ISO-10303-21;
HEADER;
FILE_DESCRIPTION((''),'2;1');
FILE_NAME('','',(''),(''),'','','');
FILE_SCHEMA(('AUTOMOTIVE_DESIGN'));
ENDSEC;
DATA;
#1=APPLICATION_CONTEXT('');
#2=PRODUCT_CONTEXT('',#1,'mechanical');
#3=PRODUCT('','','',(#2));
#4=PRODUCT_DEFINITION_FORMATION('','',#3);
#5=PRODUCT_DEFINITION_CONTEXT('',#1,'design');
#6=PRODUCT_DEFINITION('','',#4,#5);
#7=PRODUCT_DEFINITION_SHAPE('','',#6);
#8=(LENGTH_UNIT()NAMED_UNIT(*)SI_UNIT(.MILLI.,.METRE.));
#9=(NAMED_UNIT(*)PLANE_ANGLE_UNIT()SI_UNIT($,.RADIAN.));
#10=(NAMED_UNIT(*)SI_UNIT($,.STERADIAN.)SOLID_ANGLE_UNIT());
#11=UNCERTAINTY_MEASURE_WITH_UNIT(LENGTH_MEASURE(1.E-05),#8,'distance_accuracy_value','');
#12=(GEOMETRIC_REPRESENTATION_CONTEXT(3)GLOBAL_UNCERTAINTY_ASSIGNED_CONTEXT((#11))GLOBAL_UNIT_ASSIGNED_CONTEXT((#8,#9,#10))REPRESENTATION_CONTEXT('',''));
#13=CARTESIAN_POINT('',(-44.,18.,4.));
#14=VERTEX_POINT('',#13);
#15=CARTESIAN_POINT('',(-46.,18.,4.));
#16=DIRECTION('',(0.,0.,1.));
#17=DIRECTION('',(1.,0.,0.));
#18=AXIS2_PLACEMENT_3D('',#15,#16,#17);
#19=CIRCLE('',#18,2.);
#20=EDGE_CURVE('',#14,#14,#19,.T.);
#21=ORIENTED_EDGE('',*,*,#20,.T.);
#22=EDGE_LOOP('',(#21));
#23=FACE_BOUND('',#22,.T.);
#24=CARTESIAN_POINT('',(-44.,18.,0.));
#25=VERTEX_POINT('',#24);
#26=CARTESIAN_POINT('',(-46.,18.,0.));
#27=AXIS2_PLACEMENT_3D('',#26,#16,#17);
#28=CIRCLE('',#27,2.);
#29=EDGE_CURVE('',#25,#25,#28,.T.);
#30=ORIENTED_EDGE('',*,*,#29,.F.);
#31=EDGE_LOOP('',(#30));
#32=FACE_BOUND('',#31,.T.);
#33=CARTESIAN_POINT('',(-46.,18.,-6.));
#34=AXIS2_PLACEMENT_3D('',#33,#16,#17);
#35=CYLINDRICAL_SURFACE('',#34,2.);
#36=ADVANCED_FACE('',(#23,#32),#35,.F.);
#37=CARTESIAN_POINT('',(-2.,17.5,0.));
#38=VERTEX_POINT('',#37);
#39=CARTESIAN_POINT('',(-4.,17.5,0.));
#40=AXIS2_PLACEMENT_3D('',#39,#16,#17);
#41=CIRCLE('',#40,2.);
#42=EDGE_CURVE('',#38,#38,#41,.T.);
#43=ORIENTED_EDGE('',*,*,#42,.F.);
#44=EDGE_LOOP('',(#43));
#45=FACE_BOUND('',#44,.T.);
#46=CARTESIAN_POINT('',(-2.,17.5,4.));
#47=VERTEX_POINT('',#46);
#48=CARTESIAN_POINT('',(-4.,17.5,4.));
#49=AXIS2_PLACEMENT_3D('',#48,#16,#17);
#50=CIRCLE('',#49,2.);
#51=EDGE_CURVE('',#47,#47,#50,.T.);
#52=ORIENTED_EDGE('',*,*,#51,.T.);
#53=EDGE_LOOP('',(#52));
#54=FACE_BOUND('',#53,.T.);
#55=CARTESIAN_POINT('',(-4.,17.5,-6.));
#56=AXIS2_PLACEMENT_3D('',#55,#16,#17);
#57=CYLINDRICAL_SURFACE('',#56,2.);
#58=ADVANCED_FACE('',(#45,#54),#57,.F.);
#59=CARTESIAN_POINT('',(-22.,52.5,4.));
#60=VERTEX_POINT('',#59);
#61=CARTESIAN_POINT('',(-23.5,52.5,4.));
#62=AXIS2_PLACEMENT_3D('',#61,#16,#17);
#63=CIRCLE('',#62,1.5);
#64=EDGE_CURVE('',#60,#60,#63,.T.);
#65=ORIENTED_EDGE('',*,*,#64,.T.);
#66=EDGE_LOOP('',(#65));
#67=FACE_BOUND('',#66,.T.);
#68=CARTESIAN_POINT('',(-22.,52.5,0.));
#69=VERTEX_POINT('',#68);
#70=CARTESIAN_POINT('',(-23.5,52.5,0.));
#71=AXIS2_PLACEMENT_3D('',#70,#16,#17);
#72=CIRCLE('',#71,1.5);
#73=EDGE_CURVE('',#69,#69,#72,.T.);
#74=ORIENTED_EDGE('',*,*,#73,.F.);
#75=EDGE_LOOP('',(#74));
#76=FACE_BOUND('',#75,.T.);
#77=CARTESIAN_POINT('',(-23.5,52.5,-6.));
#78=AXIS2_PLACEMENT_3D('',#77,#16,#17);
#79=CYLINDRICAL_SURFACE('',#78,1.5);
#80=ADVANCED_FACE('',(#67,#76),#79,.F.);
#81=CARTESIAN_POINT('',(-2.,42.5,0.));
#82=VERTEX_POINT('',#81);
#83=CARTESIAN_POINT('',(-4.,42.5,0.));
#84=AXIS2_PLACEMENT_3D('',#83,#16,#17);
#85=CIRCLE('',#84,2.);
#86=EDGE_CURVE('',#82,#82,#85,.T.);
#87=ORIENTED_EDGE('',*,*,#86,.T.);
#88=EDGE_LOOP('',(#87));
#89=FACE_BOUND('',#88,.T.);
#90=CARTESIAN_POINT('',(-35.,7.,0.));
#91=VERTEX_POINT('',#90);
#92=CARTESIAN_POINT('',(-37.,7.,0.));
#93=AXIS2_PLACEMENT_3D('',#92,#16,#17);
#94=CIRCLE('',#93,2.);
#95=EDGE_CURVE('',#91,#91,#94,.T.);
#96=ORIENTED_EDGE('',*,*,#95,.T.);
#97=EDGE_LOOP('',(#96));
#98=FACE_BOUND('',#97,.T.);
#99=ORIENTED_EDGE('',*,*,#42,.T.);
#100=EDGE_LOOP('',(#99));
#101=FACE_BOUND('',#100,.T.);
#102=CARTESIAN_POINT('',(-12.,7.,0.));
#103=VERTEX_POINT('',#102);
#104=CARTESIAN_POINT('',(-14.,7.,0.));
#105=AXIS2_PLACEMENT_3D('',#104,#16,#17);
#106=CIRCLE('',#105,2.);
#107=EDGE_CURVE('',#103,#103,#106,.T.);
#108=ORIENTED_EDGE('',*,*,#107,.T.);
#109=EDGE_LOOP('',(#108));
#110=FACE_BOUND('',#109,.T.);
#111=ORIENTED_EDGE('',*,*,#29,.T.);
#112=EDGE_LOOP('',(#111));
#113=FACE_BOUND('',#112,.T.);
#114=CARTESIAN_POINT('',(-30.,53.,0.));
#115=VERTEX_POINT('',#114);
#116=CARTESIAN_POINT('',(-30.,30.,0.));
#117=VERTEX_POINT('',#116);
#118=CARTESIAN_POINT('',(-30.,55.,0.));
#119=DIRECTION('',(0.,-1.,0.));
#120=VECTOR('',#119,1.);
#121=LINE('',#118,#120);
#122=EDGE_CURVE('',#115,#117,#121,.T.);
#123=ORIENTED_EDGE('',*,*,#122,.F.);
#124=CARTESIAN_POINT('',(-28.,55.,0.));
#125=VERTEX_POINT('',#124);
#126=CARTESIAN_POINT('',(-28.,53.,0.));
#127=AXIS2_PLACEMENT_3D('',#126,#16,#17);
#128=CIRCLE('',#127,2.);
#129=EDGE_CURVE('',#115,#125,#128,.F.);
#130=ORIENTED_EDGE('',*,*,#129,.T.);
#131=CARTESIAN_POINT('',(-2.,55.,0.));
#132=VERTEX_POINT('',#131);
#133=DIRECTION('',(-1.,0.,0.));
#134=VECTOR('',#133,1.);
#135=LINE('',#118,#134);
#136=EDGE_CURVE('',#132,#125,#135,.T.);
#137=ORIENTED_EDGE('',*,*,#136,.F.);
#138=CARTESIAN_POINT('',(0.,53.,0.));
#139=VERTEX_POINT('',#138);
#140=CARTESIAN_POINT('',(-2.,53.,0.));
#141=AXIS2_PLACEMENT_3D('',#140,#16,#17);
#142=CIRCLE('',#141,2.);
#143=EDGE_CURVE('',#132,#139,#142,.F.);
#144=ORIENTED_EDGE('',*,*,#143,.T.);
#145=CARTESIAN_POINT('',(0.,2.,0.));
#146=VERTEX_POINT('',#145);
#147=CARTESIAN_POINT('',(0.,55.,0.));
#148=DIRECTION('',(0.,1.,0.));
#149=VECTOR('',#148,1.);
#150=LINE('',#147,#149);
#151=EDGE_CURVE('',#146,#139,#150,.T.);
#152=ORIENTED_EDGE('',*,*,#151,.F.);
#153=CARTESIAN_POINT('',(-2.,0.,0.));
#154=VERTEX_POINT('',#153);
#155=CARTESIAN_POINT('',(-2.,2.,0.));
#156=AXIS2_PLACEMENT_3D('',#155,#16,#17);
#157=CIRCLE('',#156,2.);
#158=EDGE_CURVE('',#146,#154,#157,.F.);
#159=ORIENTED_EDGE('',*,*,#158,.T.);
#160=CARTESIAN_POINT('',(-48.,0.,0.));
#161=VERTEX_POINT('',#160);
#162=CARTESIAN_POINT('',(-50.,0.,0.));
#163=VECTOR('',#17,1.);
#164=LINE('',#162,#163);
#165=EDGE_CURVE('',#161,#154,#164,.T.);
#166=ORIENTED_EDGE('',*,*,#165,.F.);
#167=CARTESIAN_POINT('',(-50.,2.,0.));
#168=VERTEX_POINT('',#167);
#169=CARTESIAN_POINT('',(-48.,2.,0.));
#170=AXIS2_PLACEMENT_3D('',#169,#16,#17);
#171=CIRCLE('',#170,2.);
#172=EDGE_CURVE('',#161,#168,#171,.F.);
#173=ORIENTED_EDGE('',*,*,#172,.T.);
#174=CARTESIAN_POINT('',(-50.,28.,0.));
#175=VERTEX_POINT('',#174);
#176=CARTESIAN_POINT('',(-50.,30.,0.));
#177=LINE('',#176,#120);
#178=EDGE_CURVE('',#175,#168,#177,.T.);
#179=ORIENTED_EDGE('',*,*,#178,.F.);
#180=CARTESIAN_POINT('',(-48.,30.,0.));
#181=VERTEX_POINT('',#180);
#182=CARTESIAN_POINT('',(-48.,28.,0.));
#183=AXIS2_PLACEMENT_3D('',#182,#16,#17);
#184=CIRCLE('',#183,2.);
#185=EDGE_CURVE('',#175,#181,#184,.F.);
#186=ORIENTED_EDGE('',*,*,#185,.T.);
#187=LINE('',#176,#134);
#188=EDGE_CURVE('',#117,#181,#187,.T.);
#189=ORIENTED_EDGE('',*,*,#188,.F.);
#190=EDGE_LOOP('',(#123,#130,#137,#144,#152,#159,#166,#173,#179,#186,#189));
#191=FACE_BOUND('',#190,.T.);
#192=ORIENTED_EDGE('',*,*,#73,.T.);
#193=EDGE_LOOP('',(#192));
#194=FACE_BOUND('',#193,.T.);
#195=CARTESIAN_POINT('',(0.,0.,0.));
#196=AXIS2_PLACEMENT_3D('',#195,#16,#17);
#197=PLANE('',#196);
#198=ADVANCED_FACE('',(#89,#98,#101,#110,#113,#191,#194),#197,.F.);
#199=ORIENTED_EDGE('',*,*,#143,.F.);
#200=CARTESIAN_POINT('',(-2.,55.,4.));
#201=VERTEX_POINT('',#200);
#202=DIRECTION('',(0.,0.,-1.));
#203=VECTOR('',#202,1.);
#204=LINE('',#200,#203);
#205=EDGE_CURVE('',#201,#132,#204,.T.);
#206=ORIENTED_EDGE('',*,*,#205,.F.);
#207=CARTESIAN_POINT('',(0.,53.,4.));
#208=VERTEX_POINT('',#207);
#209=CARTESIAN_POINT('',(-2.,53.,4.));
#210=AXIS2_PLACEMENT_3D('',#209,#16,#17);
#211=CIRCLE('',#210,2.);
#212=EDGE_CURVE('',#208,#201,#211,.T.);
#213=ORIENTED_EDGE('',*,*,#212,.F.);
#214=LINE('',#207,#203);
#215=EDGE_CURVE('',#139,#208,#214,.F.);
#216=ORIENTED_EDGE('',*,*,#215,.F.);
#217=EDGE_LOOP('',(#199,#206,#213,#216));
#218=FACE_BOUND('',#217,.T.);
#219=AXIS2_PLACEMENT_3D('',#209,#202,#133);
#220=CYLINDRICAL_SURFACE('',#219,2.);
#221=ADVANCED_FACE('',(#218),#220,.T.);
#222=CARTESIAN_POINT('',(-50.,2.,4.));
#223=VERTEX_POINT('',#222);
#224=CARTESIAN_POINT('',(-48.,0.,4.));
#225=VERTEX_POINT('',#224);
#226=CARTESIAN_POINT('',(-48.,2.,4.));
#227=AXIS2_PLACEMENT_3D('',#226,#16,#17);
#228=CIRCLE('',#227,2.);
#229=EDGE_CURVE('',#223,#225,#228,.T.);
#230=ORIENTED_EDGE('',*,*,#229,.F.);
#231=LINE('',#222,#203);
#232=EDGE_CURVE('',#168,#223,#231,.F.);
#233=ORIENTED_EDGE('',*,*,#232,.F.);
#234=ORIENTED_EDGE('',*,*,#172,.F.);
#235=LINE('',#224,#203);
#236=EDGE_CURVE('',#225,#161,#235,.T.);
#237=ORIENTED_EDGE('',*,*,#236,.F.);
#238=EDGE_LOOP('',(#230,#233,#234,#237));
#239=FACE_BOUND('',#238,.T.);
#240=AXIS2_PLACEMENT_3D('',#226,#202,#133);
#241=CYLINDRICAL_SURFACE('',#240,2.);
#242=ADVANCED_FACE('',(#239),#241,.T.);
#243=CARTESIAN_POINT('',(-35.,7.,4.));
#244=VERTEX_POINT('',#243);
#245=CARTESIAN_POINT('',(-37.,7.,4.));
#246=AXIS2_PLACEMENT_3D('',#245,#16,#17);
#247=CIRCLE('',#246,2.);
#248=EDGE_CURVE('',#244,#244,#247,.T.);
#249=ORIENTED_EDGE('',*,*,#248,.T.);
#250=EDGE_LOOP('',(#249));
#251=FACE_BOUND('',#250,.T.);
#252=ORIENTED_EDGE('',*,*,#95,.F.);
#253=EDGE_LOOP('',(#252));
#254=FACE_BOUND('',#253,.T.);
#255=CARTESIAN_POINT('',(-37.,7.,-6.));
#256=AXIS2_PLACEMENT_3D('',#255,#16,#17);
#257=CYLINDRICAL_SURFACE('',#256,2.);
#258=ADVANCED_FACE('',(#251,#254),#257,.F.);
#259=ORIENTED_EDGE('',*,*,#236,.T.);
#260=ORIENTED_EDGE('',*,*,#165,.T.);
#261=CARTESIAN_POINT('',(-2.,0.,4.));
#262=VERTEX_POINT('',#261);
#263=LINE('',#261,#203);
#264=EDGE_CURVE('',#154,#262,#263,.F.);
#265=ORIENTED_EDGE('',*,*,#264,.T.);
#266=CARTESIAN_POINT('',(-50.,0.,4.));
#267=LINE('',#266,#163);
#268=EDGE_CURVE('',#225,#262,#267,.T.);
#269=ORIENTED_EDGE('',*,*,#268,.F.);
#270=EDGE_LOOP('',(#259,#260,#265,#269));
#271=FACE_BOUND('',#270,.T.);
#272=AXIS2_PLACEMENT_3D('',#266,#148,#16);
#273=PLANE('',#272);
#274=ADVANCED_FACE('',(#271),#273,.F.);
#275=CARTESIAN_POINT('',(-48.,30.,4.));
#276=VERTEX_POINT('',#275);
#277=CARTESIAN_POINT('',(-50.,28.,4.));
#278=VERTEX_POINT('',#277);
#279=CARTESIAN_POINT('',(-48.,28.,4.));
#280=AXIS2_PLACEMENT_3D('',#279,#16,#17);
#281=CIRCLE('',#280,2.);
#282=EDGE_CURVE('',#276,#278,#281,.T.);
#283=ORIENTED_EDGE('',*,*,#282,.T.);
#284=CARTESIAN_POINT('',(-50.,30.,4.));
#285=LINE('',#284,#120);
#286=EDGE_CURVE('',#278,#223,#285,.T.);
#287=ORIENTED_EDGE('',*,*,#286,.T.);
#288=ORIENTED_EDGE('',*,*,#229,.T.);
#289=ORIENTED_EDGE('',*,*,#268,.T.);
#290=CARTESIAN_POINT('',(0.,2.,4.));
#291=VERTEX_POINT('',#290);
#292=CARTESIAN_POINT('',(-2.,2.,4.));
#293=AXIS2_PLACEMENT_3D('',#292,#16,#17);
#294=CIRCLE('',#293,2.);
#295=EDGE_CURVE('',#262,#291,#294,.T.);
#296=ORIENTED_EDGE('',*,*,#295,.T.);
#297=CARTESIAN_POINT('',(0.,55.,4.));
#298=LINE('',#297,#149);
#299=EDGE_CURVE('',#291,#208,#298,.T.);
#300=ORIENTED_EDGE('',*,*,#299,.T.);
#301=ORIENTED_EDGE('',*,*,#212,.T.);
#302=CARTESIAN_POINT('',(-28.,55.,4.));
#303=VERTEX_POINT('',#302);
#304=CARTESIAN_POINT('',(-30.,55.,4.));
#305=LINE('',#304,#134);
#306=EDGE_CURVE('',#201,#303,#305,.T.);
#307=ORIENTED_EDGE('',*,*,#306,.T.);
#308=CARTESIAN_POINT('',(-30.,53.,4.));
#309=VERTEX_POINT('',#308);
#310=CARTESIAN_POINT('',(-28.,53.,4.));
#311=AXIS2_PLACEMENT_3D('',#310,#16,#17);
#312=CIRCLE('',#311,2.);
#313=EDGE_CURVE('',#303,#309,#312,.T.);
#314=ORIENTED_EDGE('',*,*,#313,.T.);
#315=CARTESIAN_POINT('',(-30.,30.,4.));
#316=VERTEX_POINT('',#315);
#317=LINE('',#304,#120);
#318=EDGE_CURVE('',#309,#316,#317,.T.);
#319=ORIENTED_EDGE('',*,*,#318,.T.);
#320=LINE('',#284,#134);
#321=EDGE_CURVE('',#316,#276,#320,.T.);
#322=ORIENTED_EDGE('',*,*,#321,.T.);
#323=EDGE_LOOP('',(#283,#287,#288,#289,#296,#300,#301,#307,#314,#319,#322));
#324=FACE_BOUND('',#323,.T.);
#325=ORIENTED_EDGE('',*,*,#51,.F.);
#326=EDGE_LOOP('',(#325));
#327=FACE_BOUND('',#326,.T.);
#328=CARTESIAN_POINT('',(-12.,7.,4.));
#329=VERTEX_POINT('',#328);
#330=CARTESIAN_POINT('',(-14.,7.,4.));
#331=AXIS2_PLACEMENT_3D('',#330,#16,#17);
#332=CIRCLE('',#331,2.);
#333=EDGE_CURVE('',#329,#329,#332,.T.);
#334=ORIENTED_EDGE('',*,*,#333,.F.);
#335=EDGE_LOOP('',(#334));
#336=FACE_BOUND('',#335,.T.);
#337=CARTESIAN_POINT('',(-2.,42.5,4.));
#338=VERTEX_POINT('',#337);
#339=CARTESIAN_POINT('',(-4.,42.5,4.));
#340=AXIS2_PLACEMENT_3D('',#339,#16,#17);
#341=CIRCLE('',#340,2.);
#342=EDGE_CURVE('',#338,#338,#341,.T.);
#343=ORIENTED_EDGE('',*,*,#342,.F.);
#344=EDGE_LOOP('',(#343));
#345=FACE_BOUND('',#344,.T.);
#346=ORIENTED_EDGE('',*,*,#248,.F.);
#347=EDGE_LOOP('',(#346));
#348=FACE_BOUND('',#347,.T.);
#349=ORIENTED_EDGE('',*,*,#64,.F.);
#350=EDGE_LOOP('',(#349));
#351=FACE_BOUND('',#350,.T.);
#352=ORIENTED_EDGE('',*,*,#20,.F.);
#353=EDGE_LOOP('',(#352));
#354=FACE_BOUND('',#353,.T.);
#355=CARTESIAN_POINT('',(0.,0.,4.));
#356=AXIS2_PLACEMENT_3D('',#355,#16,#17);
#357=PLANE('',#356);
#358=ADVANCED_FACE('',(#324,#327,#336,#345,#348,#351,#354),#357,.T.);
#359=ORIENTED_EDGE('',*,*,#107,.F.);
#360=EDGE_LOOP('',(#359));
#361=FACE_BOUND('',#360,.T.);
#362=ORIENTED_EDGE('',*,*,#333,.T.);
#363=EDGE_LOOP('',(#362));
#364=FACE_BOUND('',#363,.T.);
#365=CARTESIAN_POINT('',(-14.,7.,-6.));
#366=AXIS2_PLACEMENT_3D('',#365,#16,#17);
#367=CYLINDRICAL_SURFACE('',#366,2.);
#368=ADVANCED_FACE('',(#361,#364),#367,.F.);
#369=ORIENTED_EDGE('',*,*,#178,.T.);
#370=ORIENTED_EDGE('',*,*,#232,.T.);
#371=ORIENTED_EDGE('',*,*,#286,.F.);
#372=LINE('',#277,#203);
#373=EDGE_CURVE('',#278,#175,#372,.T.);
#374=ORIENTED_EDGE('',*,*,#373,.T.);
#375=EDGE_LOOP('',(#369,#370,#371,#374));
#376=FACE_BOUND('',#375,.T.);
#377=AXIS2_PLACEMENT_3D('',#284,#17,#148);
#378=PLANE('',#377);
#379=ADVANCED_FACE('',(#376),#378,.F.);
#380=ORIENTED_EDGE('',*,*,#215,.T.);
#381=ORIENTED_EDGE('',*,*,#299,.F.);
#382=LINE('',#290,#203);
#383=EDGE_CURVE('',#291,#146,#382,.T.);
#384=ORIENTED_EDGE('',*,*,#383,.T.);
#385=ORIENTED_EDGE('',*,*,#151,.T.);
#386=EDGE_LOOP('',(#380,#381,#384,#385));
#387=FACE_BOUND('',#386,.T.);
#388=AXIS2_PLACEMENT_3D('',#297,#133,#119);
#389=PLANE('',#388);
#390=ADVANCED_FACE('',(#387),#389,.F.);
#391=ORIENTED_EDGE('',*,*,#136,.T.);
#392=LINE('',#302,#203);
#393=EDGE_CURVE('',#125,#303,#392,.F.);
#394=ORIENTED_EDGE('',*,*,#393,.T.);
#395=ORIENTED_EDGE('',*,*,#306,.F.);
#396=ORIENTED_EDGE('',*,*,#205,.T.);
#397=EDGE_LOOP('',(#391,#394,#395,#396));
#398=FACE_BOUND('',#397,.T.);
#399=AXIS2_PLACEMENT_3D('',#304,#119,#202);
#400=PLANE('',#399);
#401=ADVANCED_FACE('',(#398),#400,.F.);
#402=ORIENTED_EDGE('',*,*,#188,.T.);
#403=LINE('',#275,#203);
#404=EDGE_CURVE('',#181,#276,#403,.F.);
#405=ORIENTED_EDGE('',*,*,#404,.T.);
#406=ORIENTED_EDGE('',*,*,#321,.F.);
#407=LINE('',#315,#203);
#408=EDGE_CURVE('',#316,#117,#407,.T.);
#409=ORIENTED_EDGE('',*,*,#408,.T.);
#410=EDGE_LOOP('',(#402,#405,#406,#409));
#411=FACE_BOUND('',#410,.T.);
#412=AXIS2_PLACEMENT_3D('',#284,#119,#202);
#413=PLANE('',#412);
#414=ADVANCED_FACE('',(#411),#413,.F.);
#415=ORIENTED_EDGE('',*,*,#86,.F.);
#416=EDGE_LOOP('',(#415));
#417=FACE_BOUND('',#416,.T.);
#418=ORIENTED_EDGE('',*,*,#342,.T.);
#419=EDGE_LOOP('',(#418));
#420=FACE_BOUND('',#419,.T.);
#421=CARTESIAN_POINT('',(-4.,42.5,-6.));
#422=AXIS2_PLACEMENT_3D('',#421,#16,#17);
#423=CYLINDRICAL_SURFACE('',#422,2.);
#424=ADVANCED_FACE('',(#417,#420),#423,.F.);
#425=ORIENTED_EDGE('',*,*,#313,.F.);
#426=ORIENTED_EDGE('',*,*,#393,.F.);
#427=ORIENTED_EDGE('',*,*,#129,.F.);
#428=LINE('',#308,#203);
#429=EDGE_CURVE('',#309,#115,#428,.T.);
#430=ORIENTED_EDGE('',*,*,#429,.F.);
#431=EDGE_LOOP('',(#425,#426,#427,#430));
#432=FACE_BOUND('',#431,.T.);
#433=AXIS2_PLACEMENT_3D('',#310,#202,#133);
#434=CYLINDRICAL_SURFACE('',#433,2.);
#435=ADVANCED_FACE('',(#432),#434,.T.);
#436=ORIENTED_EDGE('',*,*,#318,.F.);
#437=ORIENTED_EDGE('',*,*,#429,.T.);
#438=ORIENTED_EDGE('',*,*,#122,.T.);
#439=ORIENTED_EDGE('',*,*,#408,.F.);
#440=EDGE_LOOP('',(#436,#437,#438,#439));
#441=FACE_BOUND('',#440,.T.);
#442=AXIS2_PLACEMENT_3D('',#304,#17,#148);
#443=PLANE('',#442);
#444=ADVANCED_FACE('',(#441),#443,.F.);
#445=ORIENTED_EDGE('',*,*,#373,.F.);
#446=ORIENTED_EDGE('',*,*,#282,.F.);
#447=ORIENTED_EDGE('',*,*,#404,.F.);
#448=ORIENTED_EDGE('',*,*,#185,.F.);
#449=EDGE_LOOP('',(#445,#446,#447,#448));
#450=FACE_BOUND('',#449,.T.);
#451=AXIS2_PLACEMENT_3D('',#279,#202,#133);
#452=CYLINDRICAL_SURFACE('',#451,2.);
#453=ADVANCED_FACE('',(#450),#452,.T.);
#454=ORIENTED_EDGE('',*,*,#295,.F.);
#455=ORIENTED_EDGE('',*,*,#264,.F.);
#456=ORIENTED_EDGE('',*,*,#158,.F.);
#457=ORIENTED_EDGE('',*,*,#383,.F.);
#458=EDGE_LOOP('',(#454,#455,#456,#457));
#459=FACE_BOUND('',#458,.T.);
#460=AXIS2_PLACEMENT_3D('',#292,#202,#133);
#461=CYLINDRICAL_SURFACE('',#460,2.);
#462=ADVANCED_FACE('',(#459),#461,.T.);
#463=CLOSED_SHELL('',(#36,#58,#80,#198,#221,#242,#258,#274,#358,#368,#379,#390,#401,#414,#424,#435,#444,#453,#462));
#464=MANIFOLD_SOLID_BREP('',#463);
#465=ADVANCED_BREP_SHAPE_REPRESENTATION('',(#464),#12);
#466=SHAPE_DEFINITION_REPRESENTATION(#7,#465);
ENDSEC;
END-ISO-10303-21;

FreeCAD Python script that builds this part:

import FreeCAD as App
import Part
import Sketcher

V = App.Vector


def edges_at(feature, points):
    """Names of the edges that pass closest to the given points."""
    edges = feature.Shape.Edges
    near = lambda p: min(range(len(edges)), key=lambda i: edges[i].distToShape(Part.Vertex(*p))[0])
    return sorted({f"Edge{near(p) + 1}" for p in points})


def add_polygon(sketch, points):
    """Adds a closed chain of lines whose ends are joined by coincident constraints."""
    first, n = sketch.GeometryCount, len(points)
    for a, b in zip(points, points[1:] + points[:1]):
        sketch.addGeometry(Part.LineSegment(App.Vector(*a, 0), App.Vector(*b, 0)), False)
    for i in range(n):
        sketch.addConstraint(Sketcher.Constraint("Coincident", first + i, 2, first + (i + 1) % n, 1))

doc = App.newDocument("Part")
body = doc.addObject("PartDesign::Body", "Body")

# Sketch on XY plane
sketch1 = body.newObject("Sketcher::SketchObject", "Sketch")
sketch1.AttachmentSupport = (doc.getObject("XY_Plane"), [""])
sketch1.MapMode = "FlatFace"
add_polygon(sketch1, [(0, 55), (-30, 55), (-30, 30), (-50, 30), (-50, 0), (0, 0)])  # lines 0-5
sketch1.addConstraint([
    Sketcher.Constraint("Horizontal", 0),
    Sketcher.Constraint("Vertical", 1),
    Sketcher.Constraint("Horizontal", 2),
    Sketcher.Constraint("Vertical", 3),
    Sketcher.Constraint("Horizontal", 4),
    Sketcher.Constraint("Vertical", 5),
    Sketcher.Constraint("Coincident", 4, 2, -1, 1),
    Sketcher.Constraint("Equal", 0, 3),
    Sketcher.Constraint("DistanceX", 0, 2, 0, 1, 30.0),
    Sketcher.Constraint("DistanceX", 2, 2, 2, 1, 20.0),
    Sketcher.Constraint("DistanceY", 1, 2, 1, 1, 25.0),
])
pad1 = body.newObject("PartDesign::Pad", "Pad")
pad1.Profile = sketch1
pad1.Length = 4
doc.recompute()

fillet = body.newObject("PartDesign::Fillet", "Fillet")
fillet.Base = (pad1, edges_at(pad1, [
    (0, 0, 2),
    (-50, 0, 2),
    (-50, 30, 2),
    (-30, 55, 2),
    (0, 55, 2),
]))
fillet.Radius = 2

# Sketch on XY plane
sketch2 = body.newObject("Sketcher::SketchObject", "Sketch001")
sketch2.AttachmentSupport = (doc.getObject("XY_Plane"), [""])
sketch2.MapMode = "FlatFace"
sketch2.AttachmentOffset = App.Placement(V(0, 0, 4), App.Rotation())
sketch2.addGeometry([
    Part.Circle(V(-23.5, 52.5, 0), V(0, 0, 1), 1.5),  # 0
    Part.Circle(V(-46, 18, 0), V(0, 0, 1), 2),  # 1
    Part.Circle(V(-37, 7, 0), V(0, 0, 1), 2),  # 2
    Part.Circle(V(-14, 7, 0), V(0, 0, 1), 2),  # 3
    Part.Circle(V(-4, 17.5, 0), V(0, 0, 1), 2),  # 4
    Part.Circle(V(-4, 42.5, 0), V(0, 0, 1), 2),  # 5
], False)
sketch2.addConstraint([
    Sketcher.Constraint("Equal", 1, 2),
    Sketcher.Constraint("Equal", 2, 3),
    Sketcher.Constraint("Equal", 3, 4),
    Sketcher.Constraint("Equal", 4, 5),
    Sketcher.Constraint("Horizontal", 2, 3, 3, 3),
    Sketcher.Constraint("Vertical", 4, 3, 5, 3),
    Sketcher.Constraint("Diameter", 0, 3.0),
    Sketcher.Constraint("Diameter", 1, 4.0),
    Sketcher.Constraint("DistanceX", 1, 3, -1, 1, 46.0),
    Sketcher.Constraint("DistanceY", -1, 1, 1, 3, 18.0),
    Sketcher.Constraint("DistanceX", 2, 3, -1, 1, 37.0),
    Sketcher.Constraint("DistanceY", -1, 1, 2, 3, 7.0),
    Sketcher.Constraint("DistanceX", 3, 3, -1, 1, 14.0),
    Sketcher.Constraint("DistanceX", 4, 3, -1, 1, 4.0),
    Sketcher.Constraint("DistanceY", 4, 3, 0, 3, 35.0),
    Sketcher.Constraint("DistanceY", 5, 3, 0, 3, 10.0),
    Sketcher.Constraint("DistanceX", 0, 3, -1, 1, 23.5),
    Sketcher.Constraint("DistanceY", -1, 1, 0, 3, 52.5),
])
pocket1 = body.newObject("PartDesign::Pocket", "Pocket")
pocket1.Profile = sketch2
pocket1.Length = 10

doc.recompute()
